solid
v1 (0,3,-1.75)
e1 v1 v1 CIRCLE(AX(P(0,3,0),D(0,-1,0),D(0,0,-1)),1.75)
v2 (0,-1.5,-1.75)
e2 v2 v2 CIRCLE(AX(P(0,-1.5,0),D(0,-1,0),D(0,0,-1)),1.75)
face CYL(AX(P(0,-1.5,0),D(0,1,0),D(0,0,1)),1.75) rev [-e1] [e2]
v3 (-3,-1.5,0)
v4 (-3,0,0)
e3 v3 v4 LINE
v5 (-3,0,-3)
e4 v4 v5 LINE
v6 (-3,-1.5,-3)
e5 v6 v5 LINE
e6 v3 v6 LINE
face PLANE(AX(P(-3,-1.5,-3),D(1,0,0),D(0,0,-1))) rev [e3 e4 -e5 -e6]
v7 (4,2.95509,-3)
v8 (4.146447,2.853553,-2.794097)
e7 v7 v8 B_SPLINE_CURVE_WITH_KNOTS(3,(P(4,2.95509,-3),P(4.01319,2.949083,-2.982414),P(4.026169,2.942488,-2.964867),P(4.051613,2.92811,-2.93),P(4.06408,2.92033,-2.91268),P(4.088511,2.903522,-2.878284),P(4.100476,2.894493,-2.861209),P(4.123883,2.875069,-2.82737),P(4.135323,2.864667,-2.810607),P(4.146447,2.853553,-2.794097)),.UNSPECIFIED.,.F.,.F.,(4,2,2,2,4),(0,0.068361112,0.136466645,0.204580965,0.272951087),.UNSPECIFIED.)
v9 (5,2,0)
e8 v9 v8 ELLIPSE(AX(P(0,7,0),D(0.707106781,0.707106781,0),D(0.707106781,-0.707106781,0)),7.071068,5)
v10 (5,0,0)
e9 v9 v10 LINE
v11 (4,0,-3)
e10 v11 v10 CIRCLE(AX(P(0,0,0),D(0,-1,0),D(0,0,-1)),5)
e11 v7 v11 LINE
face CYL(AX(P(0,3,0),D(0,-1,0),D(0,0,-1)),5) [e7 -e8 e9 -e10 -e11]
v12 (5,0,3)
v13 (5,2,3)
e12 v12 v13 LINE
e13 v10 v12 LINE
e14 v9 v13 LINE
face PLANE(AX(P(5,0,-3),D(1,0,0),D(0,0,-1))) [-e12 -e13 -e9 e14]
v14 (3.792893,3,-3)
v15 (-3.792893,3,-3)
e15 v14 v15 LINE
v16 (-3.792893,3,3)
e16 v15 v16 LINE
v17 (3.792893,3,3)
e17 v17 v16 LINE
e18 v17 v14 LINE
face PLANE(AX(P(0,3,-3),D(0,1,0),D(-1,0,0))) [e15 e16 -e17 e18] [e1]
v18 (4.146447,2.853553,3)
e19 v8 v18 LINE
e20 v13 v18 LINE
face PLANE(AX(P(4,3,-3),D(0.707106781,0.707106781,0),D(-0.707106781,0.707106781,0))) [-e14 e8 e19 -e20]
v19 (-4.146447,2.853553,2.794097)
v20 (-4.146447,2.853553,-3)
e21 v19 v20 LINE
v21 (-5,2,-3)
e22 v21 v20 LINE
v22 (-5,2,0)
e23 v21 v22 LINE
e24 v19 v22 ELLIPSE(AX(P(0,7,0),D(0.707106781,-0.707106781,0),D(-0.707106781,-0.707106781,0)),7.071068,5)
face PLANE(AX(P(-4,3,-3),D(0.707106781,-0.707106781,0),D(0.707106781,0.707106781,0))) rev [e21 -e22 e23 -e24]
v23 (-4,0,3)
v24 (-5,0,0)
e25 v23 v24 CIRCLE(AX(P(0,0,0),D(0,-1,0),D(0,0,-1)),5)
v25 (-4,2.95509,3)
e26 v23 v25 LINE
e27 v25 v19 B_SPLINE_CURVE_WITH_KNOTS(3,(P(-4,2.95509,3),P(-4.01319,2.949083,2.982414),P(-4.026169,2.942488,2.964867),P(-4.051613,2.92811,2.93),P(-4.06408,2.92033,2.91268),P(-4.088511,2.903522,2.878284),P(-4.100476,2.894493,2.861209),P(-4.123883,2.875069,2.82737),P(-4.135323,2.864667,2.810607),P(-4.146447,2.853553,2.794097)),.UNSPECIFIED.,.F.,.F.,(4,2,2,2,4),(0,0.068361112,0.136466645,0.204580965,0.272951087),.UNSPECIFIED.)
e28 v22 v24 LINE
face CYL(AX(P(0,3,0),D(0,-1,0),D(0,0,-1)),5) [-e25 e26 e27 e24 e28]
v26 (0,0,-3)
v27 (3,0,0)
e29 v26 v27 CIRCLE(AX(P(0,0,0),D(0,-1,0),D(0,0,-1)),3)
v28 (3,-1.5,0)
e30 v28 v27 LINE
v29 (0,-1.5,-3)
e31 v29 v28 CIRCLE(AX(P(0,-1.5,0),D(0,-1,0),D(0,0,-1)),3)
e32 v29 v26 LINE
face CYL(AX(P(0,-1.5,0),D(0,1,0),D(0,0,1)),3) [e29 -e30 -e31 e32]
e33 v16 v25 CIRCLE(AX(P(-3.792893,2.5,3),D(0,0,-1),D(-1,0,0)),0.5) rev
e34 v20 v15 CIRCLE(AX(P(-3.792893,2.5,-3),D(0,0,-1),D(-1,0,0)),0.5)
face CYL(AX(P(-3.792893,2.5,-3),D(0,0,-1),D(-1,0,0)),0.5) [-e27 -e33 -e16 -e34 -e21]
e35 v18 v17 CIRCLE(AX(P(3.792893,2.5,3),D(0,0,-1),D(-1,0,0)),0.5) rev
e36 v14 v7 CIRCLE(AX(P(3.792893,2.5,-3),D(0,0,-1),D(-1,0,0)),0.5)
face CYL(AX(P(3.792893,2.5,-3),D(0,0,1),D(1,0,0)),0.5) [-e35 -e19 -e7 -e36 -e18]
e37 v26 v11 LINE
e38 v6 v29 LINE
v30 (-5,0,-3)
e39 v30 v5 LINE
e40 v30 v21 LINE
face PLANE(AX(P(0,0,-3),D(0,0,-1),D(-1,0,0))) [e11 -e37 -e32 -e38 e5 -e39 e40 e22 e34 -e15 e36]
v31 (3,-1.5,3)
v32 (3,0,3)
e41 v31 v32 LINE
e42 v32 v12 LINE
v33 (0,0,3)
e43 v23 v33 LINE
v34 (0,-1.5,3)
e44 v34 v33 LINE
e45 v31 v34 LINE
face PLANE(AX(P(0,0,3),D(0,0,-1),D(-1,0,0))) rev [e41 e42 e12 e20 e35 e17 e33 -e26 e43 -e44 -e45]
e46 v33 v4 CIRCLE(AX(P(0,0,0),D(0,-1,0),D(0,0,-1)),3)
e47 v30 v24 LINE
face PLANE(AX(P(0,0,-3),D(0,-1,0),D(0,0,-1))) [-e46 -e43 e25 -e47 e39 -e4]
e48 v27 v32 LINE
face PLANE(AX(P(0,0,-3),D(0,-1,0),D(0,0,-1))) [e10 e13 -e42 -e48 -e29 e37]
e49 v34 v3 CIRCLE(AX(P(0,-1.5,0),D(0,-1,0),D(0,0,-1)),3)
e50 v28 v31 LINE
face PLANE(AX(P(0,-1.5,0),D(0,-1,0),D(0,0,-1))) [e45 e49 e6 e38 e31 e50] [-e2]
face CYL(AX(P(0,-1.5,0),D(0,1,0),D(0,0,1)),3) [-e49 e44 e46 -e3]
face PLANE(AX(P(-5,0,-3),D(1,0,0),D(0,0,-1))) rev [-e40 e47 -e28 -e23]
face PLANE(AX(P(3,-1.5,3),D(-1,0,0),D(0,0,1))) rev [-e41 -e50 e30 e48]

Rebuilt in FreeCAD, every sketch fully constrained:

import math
import FreeCAD as App
import Part
import Sketcher

V = App.Vector


def edges_at(feature, points):
    """Names of the edges that pass closest to the given points."""
    edges = feature.Shape.Edges
    near = lambda p: min(range(len(edges)), key=lambda i: edges[i].distToShape(Part.Vertex(*p))[0])
    return sorted({f"Edge{near(p) + 1}" for p in points})


def add_polygon(sketch, points):
    """Adds a closed chain of lines whose ends are joined by coincident constraints."""
    first, n = sketch.GeometryCount, len(points)
    for a, b in zip(points, points[1:] + points[:1]):
        sketch.addGeometry(Part.LineSegment(App.Vector(*a, 0), App.Vector(*b, 0)), False)
    for i in range(n):
        sketch.addConstraint(Sketcher.Constraint("Coincident", first + i, 2, first + (i + 1) % n, 1))

doc = App.newDocument("Part")
body = doc.addObject("PartDesign::Body", "Body")

sketch1 = body.newObject("Sketcher::SketchObject", "Sketch")
sketch1.AttachmentSupport = (doc.getObject("XY_Plane"), [""])
sketch1.MapMode = "FlatFace"
add_polygon(sketch1, [(5, 2), (4, 3), (0, 3), (0, 0), (5, 0)])
sketch1.addConstraint([
    Sketcher.Constraint("Horizontal", 1),
    Sketcher.Constraint("Vertical", 2),
    Sketcher.Constraint("Horizontal", 3),
    Sketcher.Constraint("Vertical", 4),
    Sketcher.Constraint("Coincident", 2, 2, -1, 1),
    Sketcher.Constraint("DistanceX", 1, 2, 1, 1, 4.0),
    Sketcher.Constraint("DistanceX", 3, 1, 3, 2, 5.0),
    Sketcher.Constraint("DistanceY", 2, 2, 2, 1, 3.0),
    Sketcher.Constraint("DistanceY", 4, 1, 4, 2, 2.0),
])
pad1 = body.newObject("PartDesign::Pad", "Pad")
pad1.Profile = sketch1
pad1.Length = 6
pad1.Midplane = True
doc.recompute()

mirrored = body.newObject("PartDesign::Mirrored", "Mirrored")
mirrored.Originals = [pad1]
mirrored.MirrorPlane = (doc.getObject("YZ_Plane"), [""])
body.Tip = mirrored

sketch2 = body.newObject("Sketcher::SketchObject", "Sketch001")
sketch2.AttachmentSupport = (doc.getObject("XZ_Plane"), [""])
sketch2.MapMode = "FlatFace"
sketch2.addGeometry([
    Part.LineSegment(V(-3, -3, 0), V(0, -3, 0)),
    Part.ArcOfCircle(Part.Circle(V(0, 0, 0), V(0, 0, 1), 3), math.radians(-90), math.radians(0)),
    Part.LineSegment(V(3, 0, 0), V(3, 3, 0)),
    Part.LineSegment(V(3, 3, 0), V(0, 3, 0)),
    Part.ArcOfCircle(Part.Circle(V(0, 0, 0), V(0, 0, 1), 3), math.radians(90), math.radians(180)),
    Part.LineSegment(V(-3, 0, 0), V(-3, -3, 0)),
    Part.Circle(V(0, 0, 0), V(0, 0, 1), 1.8),
], False)
sketch2.addConstraint([
    Sketcher.Constraint("Tangent", 0, 2, 1, 1),
    Sketcher.Constraint("Tangent", 1, 2, 2, 1),
    Sketcher.Constraint("Coincident", 2, 2, 3, 1),
    Sketcher.Constraint("Tangent", 3, 2, 4, 1),
    Sketcher.Constraint("Tangent", 4, 2, 5, 1),
    Sketcher.Constraint("Coincident", 5, 2, 0, 1),
    Sketcher.Constraint("Horizontal", 0),
    Sketcher.Constraint("Vertical", 2),
    Sketcher.Constraint("Horizontal", 3),
    Sketcher.Constraint("Vertical", 5),
    Sketcher.Constraint("Coincident", 1, 3, -1, 1),
    Sketcher.Constraint("Coincident", 4, 3, -1, 1),
    Sketcher.Constraint("Coincident", 6, 3, -1, 1),
    Sketcher.Constraint("Equal", 1, 4),
    Sketcher.Constraint("Radius", 1, 3.0),
    Sketcher.Constraint("Diameter", 6, 3.5),
])
pad2 = body.newObject("PartDesign::Pad", "Pad001")
pad2.Profile = sketch2
pad2.Length = 1.5

sketch3 = body.newObject("Sketcher::SketchObject", "Sketch002")
sketch3.AttachmentSupport = (doc.getObject("XZ_Plane"), [""])
sketch3.MapMode = "FlatFace"
sketch3.addGeometry(Part.Circle(V(0, 0, 0), V(0, 0, 1), 1.8), False)
sketch3.addConstraint([
    Sketcher.Constraint("Coincident", 0, 3, -1, 1),
    Sketcher.Constraint("Diameter", 0, 3.5),
])
pocket1 = body.newObject("PartDesign::Pocket", "Pocket")
pocket1.Profile = sketch3
pocket1.Type = "ThroughAll"

sketch4 = body.newObject("Sketcher::SketchObject", "Sketch003")
sketch4.AttachmentSupport = (doc.getObject("XZ_Plane"), [""])
sketch4.MapMode = "FlatFace"
sketch4.addGeometry([
    Part.LineSegment(V(8, 0, 0), V(5, 0, 0)),
    Part.ArcOfCircle(Part.Circle(V(0, 0, 0), V(0, 0, 1), 5), math.radians(-90), math.radians(0)),
    Part.LineSegment(V(0, -5, 0), V(0, -5.7, 0)),
    Part.LineSegment(V(0, -5.7, 0), V(8, -5.7, 0)),
    Part.LineSegment(V(8, -5.7, 0), V(8, 0, 0)),
    Part.LineSegment(V(-8, 0, 0), V(-5, 0, 0)),
    Part.ArcOfCircle(Part.Circle(V(0, 0, 0), V(0, 0, 1), 5), math.radians(143), math.radians(180)),
    Part.ArcOfCircle(Part.Circle(V(0, 0, 0), V(0, 0, 1), 5), math.radians(90), math.radians(143)),
    Part.LineSegment(V(0, 5, 0), V(0, 5.7, 0)),
    Part.LineSegment(V(0, 5.7, 0), V(-8, 5.7, 0)),
    Part.LineSegment(V(-8, 5.7, 0), V(-8, 0, 0)),
], False)
sketch4.addConstraint([
    Sketcher.Constraint("Coincident", 0, 2, 1, 2),
    Sketcher.Constraint("Coincident", 1, 1, 2, 1),
    Sketcher.Constraint("Coincident", 2, 2, 3, 1),
    Sketcher.Constraint("Coincident", 3, 2, 4, 1),
    Sketcher.Constraint("Coincident", 4, 2, 0, 1),
    Sketcher.Constraint("Coincident", 5, 2, 6, 2),
    Sketcher.Constraint("Tangent", 6, 1, 7, 2),
    Sketcher.Constraint("Coincident", 7, 1, 8, 1),
    Sketcher.Constraint("Coincident", 8, 2, 9, 1),
    Sketcher.Constraint("Coincident", 9, 2, 10, 1),
    Sketcher.Constraint("Coincident", 10, 2, 5, 1),
    Sketcher.Constraint("Horizontal", 0),
    Sketcher.Constraint("Vertical", 2),
    Sketcher.Constraint("Horizontal", 3),
    Sketcher.Constraint("Vertical", 4),
    Sketcher.Constraint("Horizontal", 5),
    Sketcher.Constraint("Vertical", 8),
    Sketcher.Constraint("Horizontal", 9),
    Sketcher.Constraint("Vertical", 10),
    Sketcher.Constraint("Coincident", 1, 3, -1, 1),
    Sketcher.Constraint("Coincident", 6, 3, -1, 1),
    Sketcher.Constraint("Equal", 1, 6),
    Sketcher.Constraint("Equal", 6, 7),
    Sketcher.Constraint("Symmetric", 2, 2, 8, 2, -1, 1),
    Sketcher.Constraint("Symmetric", 4, 2, 10, 2, -1, 1),
    Sketcher.Constraint("PointOnObject", 0, 2, -1),
    Sketcher.Constraint("PointOnObject", 1, 1, -2),
    Sketcher.Constraint("Radius", 1, 5.0),
    Sketcher.Constraint("DistanceX", 6, 1, -1, 1, 4.0),
    Sketcher.Constraint("DistanceY", 2, 2, 2, 1, 0.722939),
    Sketcher.Constraint("DistanceX", 0, 2, 0, 1, 3.009165),
])
pocket2 = body.newObject("PartDesign::Pocket", "Pocket001")
pocket2.Profile = sketch4
pocket2.Type = "ThroughAll"
doc.recompute()

fillet = body.newObject("PartDesign::Fillet", "Fillet")
fillet.Base = (pocket2, edges_at(pocket2, [(4, 3, 0), (-4, 3, 0)]))
fillet.Radius = 0.5

doc.recompute()
